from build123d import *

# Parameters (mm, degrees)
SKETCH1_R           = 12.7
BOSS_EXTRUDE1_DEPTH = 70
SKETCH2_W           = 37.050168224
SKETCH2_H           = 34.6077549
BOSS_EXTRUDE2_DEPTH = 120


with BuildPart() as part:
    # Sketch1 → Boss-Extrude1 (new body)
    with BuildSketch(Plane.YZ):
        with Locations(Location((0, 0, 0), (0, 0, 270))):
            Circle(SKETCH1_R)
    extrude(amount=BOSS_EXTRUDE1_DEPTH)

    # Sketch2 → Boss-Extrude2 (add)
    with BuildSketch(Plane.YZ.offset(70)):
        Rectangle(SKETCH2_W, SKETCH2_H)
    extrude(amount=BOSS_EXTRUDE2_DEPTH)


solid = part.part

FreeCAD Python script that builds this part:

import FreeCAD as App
import Part
import Sketcher

V = App.Vector
Q = App.Units.Quantity


def add_polygon(sketch, points):
    """Adds a closed chain of lines whose ends are joined by coincident constraints."""
    first, n = sketch.GeometryCount, len(points)
    for a, b in zip(points, points[1:] + points[:1]):
        sketch.addGeometry(Part.LineSegment(App.Vector(*a, 0), App.Vector(*b, 0)), False)
    for i in range(n):
        sketch.addConstraint(Sketcher.Constraint("Coincident", first + i, 2, first + (i + 1) % n, 1))

doc = App.newDocument("Part")
body = doc.addObject("PartDesign::Body", "Body")

# Sketch on YZ plane
sketch1 = doc.addObject("Sketcher::SketchObject", "Sketch")
body.addObject(sketch1)
sketch1.AttachmentSupport = (doc.YZ_Plane, [""])
sketch1.MapMode = "FlatFace"
sketch1.addGeometry(Part.Circle(V(0, 0, 0), V(0, 0, 1), 12.7), False)
sketch1.addConstraint(Sketcher.Constraint("Coincident", 0, 3, -1, 1))
sketch1.addConstraint(Sketcher.Constraint("Diameter", 0, Q("25.4 mm")))
pad1 = doc.addObject("PartDesign::Pad", "Pad")
body.addObject(pad1)
pad1.Profile = sketch1
pad1.Length = 70

# Sketch on YZ plane
sketch2 = doc.addObject("Sketcher::SketchObject", "Sketch001")
body.addObject(sketch2)
sketch2.AttachmentSupport = (doc.YZ_Plane, [""])
sketch2.MapMode = "FlatFace"
sketch2.AttachmentOffset = App.Placement(V(0, 0, 70), App.Rotation())
add_polygon(sketch2, [(-18.525084, 17.303877), (-18.525084, -17.303877), (18.525084, -17.303877), (18.525084, 17.303877)])  # lines 0-3
sketch2.addConstraint(Sketcher.Constraint("Vertical", 0))
sketch2.addConstraint(Sketcher.Constraint("Horizontal", 1))
sketch2.addConstraint(Sketcher.Constraint("Vertical", 2))
sketch2.addConstraint(Sketcher.Constraint("Horizontal", 3))
sketch2.addConstraint(Sketcher.Constraint("Symmetric", 0, 2, 2, 2, -1, 1))
sketch2.addConstraint(Sketcher.Constraint("DistanceX", 1, 1, 1, 2, Q("37.050168 mm")))
sketch2.addConstraint(Sketcher.Constraint("DistanceY", 0, 2, 0, 1, Q("34.607755 mm")))
pad2 = doc.addObject("PartDesign::Pad", "Pad001")
body.addObject(pad2)
pad2.Profile = sketch2
pad2.Length = 120

doc.recompute()
